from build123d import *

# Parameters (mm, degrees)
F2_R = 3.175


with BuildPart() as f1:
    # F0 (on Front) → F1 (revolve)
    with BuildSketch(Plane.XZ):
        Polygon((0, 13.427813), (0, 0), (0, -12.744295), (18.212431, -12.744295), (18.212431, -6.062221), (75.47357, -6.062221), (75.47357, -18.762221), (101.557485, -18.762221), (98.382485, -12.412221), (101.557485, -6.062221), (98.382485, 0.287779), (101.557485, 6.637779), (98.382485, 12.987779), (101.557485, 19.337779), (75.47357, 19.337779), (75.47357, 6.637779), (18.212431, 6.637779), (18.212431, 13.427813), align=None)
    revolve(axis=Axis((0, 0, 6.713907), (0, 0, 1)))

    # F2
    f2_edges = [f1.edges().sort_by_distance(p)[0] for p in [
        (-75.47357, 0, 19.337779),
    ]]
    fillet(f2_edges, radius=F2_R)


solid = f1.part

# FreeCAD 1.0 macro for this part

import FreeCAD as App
import Part
import Sketcher
from FreeCAD import Vector
Q = App.Units.Quantity


def edges_at(feature, points):
    """Names of the edges that pass closest to the given points."""
    edges = feature.Shape.Edges
    near = lambda p: min(range(len(edges)), key=lambda i: edges[i].distToShape(Part.Vertex(*p))[0])
    return sorted({f"Edge{near(p) + 1}" for p in points})


def add_polygon(sketch, points):
    """Adds a closed chain of lines whose ends are joined by coincident constraints."""
    first, n = sketch.GeometryCount, len(points)
    for a, b in zip(points, points[1:] + points[:1]):
        sketch.addGeometry(Part.LineSegment(App.Vector(*a, 0), App.Vector(*b, 0)), False)
    for i in range(n):
        sketch.addConstraint(Sketcher.Constraint("Coincident", first + i, 2, first + (i + 1) % n, 1))

doc = App.newDocument("Part")
body = doc.addObject("PartDesign::Body", "Body")

# Sketch on XZ plane
sketch1 = doc.addObject("Sketcher::SketchObject", "Sketch")
body.addObject(sketch1)
sketch1.AttachmentSupport = (doc.XZ_Plane, [""])
sketch1.MapMode = "FlatFace"
add_polygon(sketch1, [(0, 13), (0, -13), (18, -13), (18, -6), (75, -6), (75, -19), (102, -19), (98, -12), (102, -6), (98, 0), (102, 7), (98, 13), (102, 19), (75, 19), (75, 7), (18, 7), (18, 13)])  # lines 0-16
sketch1.addConstraint(Sketcher.Constraint("Vertical", 0))
sketch1.addConstraint(Sketcher.Constraint("Horizontal", 1))
sketch1.addConstraint(Sketcher.Constraint("Vertical", 2))
sketch1.addConstraint(Sketcher.Constraint("Horizontal", 3))
sketch1.addConstraint(Sketcher.Constraint("Vertical", 4))
sketch1.addConstraint(Sketcher.Constraint("Horizontal", 5))
sketch1.addConstraint(Sketcher.Constraint("Horizontal", 12))
sketch1.addConstraint(Sketcher.Constraint("Vertical", 13))
sketch1.addConstraint(Sketcher.Constraint("Horizontal", 14))
sketch1.addConstraint(Sketcher.Constraint("Vertical", 15))
sketch1.addConstraint(Sketcher.Constraint("Horizontal", 16))
sketch1.addConstraint(Sketcher.Constraint("PointOnObject", 0, 2, -2))
sketch1.addConstraint(Sketcher.Constraint("Parallel", 6, 8))
sketch1.addConstraint(Sketcher.Constraint("Parallel", 7, 9))
sketch1.addConstraint(Sketcher.Constraint("Parallel", 8, 10))
sketch1.addConstraint(Sketcher.Constraint("Parallel", 9, 11))
sketch1.addConstraint(Sketcher.Constraint("Horizontal", 3, 2, 7, 2))
sketch1.addConstraint(Sketcher.Constraint("Horizontal", 9, 2, 13, 2))
sketch1.addConstraint(Sketcher.Constraint("Vertical", 5, 2, 7, 2))
sketch1.addConstraint(Sketcher.Constraint("Vertical", 6, 2, 8, 2))
sketch1.addConstraint(Sketcher.Constraint("Vertical", 7, 2, 9, 2))
sketch1.addConstraint(Sketcher.Constraint("Vertical", 8, 2, 10, 2))
sketch1.addConstraint(Sketcher.Constraint("Vertical", 9, 2, 11, 2))
sketch1.addConstraint(Sketcher.Constraint("Vertical", 4, 2, 12, 2))
sketch1.addConstraint(Sketcher.Constraint("Vertical", 2, 2, 14, 2))
sketch1.addConstraint(Sketcher.Constraint("Equal", 6, 7))
sketch1.addConstraint(Sketcher.Constraint("DistanceY", 4, 2, 4, 1, Q("0.5 in")))
sketch1.addConstraint(Sketcher.Constraint("DistanceX", 6, 2, 5, 2, Q("0.125 in")))
sketch1.addConstraint(Sketcher.Constraint("DistanceX", 1, 1, 1, 2, Q("18.212431 mm")))
sketch1.addConstraint(Sketcher.Constraint("DistanceX", 3, 1, 3, 2, Q("57.261139 mm")))
sketch1.addConstraint(Sketcher.Constraint("DistanceY", 0, 2, 0, 1, Q("26.172108 mm")))
sketch1.addConstraint(Sketcher.Constraint("DistanceX", 5, 1, 5, 2, Q("26.083915 mm")))
sketch1.addConstraint(Sketcher.Constraint("DistanceY", 2, 1, 2, 2, Q("6.682074 mm")))
sketch1.addConstraint(Sketcher.Constraint("DistanceY", 2, 2, -1, 1, Q("6.062221 mm")))
revolution = doc.addObject("PartDesign::Revolution", "Revolution")
body.addObject(revolution)
revolution.Profile = sketch1
revolution.ReferenceAxis = (sketch1, ["V_Axis"])
revolution.Angle = 360
doc.recompute()

fillet = doc.addObject("PartDesign::Fillet", "Fillet")
body.addObject(fillet)
fillet.Base = (revolution, edges_at(revolution, [(-75.474, 0, 19.338)]))
fillet.Radius = Q("0.125 in")

doc.recompute()
